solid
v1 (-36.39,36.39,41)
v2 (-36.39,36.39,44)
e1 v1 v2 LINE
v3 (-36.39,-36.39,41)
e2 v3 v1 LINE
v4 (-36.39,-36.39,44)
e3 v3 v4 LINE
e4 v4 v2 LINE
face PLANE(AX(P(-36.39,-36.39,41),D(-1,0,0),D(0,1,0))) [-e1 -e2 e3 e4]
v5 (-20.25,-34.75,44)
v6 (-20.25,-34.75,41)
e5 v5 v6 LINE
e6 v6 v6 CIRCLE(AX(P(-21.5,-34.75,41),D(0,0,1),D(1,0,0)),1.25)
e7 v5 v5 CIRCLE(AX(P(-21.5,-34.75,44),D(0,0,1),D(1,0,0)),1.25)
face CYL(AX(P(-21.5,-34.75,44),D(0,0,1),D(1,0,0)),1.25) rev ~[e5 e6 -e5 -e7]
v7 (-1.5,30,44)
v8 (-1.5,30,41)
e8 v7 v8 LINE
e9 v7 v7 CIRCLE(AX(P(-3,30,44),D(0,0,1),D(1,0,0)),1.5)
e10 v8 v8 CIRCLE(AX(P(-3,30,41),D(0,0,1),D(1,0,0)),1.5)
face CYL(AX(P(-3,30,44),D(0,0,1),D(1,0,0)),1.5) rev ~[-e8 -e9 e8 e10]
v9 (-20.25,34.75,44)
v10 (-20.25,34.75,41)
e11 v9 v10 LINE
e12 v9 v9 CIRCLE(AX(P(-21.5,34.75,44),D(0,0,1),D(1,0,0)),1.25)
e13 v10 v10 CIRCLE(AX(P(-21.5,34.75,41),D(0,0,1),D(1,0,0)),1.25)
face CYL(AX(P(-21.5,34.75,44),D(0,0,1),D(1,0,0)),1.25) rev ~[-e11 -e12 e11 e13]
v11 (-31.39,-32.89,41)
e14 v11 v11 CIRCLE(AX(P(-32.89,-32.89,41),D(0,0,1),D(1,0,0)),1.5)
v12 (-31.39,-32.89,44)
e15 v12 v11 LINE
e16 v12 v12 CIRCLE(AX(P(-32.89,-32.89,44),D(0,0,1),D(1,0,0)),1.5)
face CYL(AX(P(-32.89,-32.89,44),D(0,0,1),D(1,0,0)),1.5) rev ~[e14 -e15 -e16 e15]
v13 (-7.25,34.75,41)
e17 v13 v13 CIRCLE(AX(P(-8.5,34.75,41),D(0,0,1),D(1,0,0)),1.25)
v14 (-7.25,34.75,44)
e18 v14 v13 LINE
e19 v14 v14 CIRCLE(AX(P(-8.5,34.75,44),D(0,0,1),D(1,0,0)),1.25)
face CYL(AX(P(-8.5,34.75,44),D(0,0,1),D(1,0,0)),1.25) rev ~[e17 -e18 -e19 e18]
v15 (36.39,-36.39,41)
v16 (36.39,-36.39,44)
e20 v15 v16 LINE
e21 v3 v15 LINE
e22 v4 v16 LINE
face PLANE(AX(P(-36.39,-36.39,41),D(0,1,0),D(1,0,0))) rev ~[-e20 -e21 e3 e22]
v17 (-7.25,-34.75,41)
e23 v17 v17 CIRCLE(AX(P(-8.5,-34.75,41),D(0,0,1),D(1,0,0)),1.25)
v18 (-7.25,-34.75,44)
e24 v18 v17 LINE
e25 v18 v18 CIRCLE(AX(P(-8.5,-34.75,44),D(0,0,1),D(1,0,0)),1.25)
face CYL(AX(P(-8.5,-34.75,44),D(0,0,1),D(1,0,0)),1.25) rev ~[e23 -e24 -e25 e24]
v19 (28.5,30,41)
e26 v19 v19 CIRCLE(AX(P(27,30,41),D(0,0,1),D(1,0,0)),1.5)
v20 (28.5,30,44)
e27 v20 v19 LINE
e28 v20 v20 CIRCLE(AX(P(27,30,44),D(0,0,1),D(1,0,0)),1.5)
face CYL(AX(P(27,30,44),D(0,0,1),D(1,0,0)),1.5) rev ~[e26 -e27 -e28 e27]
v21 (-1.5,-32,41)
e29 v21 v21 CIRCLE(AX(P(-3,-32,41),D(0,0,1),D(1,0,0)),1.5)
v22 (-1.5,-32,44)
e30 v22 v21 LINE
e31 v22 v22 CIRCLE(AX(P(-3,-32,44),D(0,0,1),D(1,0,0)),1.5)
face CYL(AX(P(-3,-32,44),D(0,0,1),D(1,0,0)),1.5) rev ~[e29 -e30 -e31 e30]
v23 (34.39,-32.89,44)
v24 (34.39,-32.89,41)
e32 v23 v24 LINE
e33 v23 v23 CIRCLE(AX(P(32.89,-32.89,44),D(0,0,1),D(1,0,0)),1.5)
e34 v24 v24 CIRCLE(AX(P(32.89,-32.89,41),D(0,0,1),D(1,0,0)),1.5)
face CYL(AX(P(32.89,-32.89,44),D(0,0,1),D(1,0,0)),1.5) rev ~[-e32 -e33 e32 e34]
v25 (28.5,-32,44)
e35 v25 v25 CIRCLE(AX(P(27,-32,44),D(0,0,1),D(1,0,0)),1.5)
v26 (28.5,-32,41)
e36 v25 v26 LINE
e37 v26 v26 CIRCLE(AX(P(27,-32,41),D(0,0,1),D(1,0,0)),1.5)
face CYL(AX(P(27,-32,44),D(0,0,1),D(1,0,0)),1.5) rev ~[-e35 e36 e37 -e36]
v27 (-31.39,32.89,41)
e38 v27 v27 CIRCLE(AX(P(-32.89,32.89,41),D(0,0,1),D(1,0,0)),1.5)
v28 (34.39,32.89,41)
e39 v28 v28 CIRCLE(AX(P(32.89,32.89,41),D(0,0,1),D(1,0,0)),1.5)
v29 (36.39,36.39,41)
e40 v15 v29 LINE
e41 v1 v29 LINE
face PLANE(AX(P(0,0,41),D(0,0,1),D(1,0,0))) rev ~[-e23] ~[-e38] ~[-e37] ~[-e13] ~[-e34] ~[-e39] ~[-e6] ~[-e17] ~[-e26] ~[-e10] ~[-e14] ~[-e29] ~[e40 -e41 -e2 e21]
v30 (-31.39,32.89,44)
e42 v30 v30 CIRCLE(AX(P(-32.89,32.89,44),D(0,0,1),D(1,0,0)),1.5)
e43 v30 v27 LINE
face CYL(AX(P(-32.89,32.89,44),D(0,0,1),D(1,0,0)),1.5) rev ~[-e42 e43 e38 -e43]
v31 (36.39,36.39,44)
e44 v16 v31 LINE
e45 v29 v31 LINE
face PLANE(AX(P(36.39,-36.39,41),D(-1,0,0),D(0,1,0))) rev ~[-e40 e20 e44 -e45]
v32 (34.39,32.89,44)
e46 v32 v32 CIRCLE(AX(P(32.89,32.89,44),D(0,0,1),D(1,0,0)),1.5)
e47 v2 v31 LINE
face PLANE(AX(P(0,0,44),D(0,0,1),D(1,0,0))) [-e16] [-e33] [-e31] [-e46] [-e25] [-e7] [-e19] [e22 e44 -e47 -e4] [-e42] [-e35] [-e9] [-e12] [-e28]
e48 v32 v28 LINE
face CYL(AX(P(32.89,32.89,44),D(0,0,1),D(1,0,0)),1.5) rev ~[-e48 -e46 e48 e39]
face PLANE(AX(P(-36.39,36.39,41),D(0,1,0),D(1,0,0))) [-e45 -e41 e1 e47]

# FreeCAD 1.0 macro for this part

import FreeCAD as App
import Part
import Sketcher

V = App.Vector
Q = App.Units.Quantity

doc = App.newDocument("Part")
body = doc.addObject("PartDesign::Body", "Body")

# Sketch on XY plane
sketch1 = doc.addObject("Sketcher::SketchObject", "Sketch")
body.addObject(sketch1)
sketch1.AttachmentSupport = (doc.XY_Plane, [""])
sketch1.MapMode = "FlatFace"
sketch1.addGeometry([
    Part.LineSegment(V(-36, 36, 0), V(-36, -36, 0)),
    Part.LineSegment(V(-36, -36, 0), V(36, -36, 0)),
    Part.LineSegment(V(36, -36, 0), V(36, 36, 0)),
    Part.LineSegment(V(36, 36, 0), V(-36, 36, 0)),
], False)
sketch1.addConstraint([
    Sketcher.Constraint("Coincident", 0, 2, 1, 1),
    Sketcher.Constraint("Coincident", 1, 2, 2, 1),
    Sketcher.Constraint("Coincident", 2, 2, 3, 1),
    Sketcher.Constraint("Coincident", 3, 2, 0, 1),
    Sketcher.Constraint("Vertical", 0),
    Sketcher.Constraint("Horizontal", 1),
    Sketcher.Constraint("Vertical", 2),
    Sketcher.Constraint("Horizontal", 3),
    Sketcher.Constraint("Symmetric", 0, 2, 2, 2, -1, 1),
    Sketcher.Constraint("Equal", 3, 0),
    Sketcher.Constraint("DistanceX", 1, 1, 1, 2, Q("72.78 mm")),
])
pad1 = doc.addObject("PartDesign::Pad", "Pad")
body.addObject(pad1)
pad1.Profile = sketch1
pad1.Length = 3

# Sketch on XY plane
sketch2 = doc.addObject("Sketcher::SketchObject", "Sketch001")
body.addObject(sketch2)
sketch2.AttachmentSupport = (doc.XY_Plane, [""])
sketch2.MapMode = "FlatFace"
sketch2.AttachmentOffset = App.Placement(V(0, 0, 3), App.Rotation())
sketch2.addGeometry([
    Part.Circle(V(-32.9, 32.9, 0), V(0, 0, 1), 1.5),
    Part.Circle(V(32.9, 32.9, 0), V(0, 0, 1), 1.5),
    Part.Circle(V(-32.9, -32.9, 0), V(0, 0, 1), 1.5),
    Part.Circle(V(32.9, -32.9, 0), V(0, 0, 1), 1.5),
], False)
sketch2.addConstraint([
    Sketcher.Constraint("Equal", 0, 1),
    Sketcher.Constraint("Equal", 1, 2),
    Sketcher.Constraint("Equal", 2, 3),
    Sketcher.Constraint("Symmetric", 1, 3, 2, 3, -1, 1),
    Sketcher.Constraint("Symmetric", 0, 3, 3, 3, -1, 1),
    Sketcher.Constraint("Symmetric", 0, 3, 1, 3, -2),
    Sketcher.Constraint("Diameter", 0, Q("3 mm")),
    Sketcher.Constraint("DistanceX", 0, 3, -1, 1, Q("32.89 mm")),
    Sketcher.Constraint("DistanceY", -1, 1, 0, 3, Q("32.89 mm")),
])
pocket1 = doc.addObject("PartDesign::Pocket", "Pocket")
body.addObject(pocket1)
pocket1.Profile = sketch2
pocket1.Type = "ThroughAll"

# Sketch on XY plane
sketch3 = doc.addObject("Sketcher::SketchObject", "Sketch002")
body.addObject(sketch3)
sketch3.AttachmentSupport = (doc.XY_Plane, [""])
sketch3.MapMode = "FlatFace"
sketch3.AttachmentOffset = App.Placement(V(0, 0, 3), App.Rotation())
sketch3.addGeometry([
    Part.Circle(V(-3, 30, 0), V(0, 0, 1), 1.5),
    Part.Circle(V(27, 30, 0), V(0, 0, 1), 1.5),
    Part.Circle(V(-3, -32, 0), V(0, 0, 1), 1.5),
    Part.Circle(V(27, -32, 0), V(0, 0, 1), 1.5),
], False)
sketch3.addConstraint([
    Sketcher.Constraint("Equal", 0, 1),
    Sketcher.Constraint("Equal", 1, 2),
    Sketcher.Constraint("Equal", 2, 3),
    Sketcher.Constraint("Horizontal", 0, 3, 1, 3),
    Sketcher.Constraint("Horizontal", 2, 3, 3, 3),
    Sketcher.Constraint("Vertical", 0, 3, 2, 3),
    Sketcher.Constraint("Vertical", 1, 3, 3, 3),
    Sketcher.Constraint("Diameter", 0, Q("3 mm")),
    Sketcher.Constraint("DistanceX", 0, 3, -1, 1, Q("3 mm")),
    Sketcher.Constraint("DistanceY", -1, 1, 0, 3, Q("30 mm")),
    Sketcher.Constraint("DistanceX", -1, 1, 1, 3, Q("27 mm")),
    Sketcher.Constraint("DistanceY", 2, 3, -1, 1, Q("32 mm")),
])
pocket2 = doc.addObject("PartDesign::Pocket", "Pocket001")
body.addObject(pocket2)
pocket2.Profile = sketch3
pocket2.Type = "ThroughAll"

# Sketch on XY plane
sketch4 = doc.addObject("Sketcher::SketchObject", "Sketch003")
body.addObject(sketch4)
sketch4.AttachmentSupport = (doc.XY_Plane, [""])
sketch4.MapMode = "FlatFace"
sketch4.AttachmentOffset = App.Placement(V(0, 0, 3), App.Rotation())
sketch4.addGeometry([
    Part.Circle(V(-21.5, 34.8, 0), V(0, 0, 1), 1.2),
    Part.Circle(V(-8.5, 34.8, 0), V(0, 0, 1), 1.2),
    Part.Circle(V(-21.5, -34.8, 0), V(0, 0, 1), 1.2),
    Part.Circle(V(-8.5, -34.8, 0), V(0, 0, 1), 1.2),
], False)
sketch4.addConstraint([
    Sketcher.Constraint("Equal", 0, 1),
    Sketcher.Constraint("Equal", 1, 2),
    Sketcher.Constraint("Equal", 2, 3),
    Sketcher.Constraint("Symmetric", 0, 3, 2, 3, -1),
    Sketcher.Constraint("Symmetric", 1, 3, 3, 3, -1),
    Sketcher.Constraint("Horizontal", 0, 3, 1, 3),
    Sketcher.Constraint("Diameter", 0, Q("2.5 mm")),
    Sketcher.Constraint("DistanceX", 0, 3, 1, 3, Q("13 mm")),
    Sketcher.Constraint("DistanceX", 0, 3, -1, 1, Q("21.5 mm")),
    Sketcher.Constraint("DistanceY", 2, 3, 0, 3, Q("69.5 mm")),
])
pocket3 = doc.addObject("PartDesign::Pocket", "Pocket002")
body.addObject(pocket3)
pocket3.Profile = sketch4
pocket3.Type = "ThroughAll"
body2 = doc.addObject("PartDesign::Body", "Body001")
doc.recompute()

body.Placement = App.Placement(V(0, 0, 41), App.Rotation(V(0, 0, 1), 0))
boolean = doc.addObject("PartDesign::Boolean", "Boolean")
body2.addObject(boolean)
boolean.Type = "Fuse"
boolean.addObjects([body])

doc.recompute()
